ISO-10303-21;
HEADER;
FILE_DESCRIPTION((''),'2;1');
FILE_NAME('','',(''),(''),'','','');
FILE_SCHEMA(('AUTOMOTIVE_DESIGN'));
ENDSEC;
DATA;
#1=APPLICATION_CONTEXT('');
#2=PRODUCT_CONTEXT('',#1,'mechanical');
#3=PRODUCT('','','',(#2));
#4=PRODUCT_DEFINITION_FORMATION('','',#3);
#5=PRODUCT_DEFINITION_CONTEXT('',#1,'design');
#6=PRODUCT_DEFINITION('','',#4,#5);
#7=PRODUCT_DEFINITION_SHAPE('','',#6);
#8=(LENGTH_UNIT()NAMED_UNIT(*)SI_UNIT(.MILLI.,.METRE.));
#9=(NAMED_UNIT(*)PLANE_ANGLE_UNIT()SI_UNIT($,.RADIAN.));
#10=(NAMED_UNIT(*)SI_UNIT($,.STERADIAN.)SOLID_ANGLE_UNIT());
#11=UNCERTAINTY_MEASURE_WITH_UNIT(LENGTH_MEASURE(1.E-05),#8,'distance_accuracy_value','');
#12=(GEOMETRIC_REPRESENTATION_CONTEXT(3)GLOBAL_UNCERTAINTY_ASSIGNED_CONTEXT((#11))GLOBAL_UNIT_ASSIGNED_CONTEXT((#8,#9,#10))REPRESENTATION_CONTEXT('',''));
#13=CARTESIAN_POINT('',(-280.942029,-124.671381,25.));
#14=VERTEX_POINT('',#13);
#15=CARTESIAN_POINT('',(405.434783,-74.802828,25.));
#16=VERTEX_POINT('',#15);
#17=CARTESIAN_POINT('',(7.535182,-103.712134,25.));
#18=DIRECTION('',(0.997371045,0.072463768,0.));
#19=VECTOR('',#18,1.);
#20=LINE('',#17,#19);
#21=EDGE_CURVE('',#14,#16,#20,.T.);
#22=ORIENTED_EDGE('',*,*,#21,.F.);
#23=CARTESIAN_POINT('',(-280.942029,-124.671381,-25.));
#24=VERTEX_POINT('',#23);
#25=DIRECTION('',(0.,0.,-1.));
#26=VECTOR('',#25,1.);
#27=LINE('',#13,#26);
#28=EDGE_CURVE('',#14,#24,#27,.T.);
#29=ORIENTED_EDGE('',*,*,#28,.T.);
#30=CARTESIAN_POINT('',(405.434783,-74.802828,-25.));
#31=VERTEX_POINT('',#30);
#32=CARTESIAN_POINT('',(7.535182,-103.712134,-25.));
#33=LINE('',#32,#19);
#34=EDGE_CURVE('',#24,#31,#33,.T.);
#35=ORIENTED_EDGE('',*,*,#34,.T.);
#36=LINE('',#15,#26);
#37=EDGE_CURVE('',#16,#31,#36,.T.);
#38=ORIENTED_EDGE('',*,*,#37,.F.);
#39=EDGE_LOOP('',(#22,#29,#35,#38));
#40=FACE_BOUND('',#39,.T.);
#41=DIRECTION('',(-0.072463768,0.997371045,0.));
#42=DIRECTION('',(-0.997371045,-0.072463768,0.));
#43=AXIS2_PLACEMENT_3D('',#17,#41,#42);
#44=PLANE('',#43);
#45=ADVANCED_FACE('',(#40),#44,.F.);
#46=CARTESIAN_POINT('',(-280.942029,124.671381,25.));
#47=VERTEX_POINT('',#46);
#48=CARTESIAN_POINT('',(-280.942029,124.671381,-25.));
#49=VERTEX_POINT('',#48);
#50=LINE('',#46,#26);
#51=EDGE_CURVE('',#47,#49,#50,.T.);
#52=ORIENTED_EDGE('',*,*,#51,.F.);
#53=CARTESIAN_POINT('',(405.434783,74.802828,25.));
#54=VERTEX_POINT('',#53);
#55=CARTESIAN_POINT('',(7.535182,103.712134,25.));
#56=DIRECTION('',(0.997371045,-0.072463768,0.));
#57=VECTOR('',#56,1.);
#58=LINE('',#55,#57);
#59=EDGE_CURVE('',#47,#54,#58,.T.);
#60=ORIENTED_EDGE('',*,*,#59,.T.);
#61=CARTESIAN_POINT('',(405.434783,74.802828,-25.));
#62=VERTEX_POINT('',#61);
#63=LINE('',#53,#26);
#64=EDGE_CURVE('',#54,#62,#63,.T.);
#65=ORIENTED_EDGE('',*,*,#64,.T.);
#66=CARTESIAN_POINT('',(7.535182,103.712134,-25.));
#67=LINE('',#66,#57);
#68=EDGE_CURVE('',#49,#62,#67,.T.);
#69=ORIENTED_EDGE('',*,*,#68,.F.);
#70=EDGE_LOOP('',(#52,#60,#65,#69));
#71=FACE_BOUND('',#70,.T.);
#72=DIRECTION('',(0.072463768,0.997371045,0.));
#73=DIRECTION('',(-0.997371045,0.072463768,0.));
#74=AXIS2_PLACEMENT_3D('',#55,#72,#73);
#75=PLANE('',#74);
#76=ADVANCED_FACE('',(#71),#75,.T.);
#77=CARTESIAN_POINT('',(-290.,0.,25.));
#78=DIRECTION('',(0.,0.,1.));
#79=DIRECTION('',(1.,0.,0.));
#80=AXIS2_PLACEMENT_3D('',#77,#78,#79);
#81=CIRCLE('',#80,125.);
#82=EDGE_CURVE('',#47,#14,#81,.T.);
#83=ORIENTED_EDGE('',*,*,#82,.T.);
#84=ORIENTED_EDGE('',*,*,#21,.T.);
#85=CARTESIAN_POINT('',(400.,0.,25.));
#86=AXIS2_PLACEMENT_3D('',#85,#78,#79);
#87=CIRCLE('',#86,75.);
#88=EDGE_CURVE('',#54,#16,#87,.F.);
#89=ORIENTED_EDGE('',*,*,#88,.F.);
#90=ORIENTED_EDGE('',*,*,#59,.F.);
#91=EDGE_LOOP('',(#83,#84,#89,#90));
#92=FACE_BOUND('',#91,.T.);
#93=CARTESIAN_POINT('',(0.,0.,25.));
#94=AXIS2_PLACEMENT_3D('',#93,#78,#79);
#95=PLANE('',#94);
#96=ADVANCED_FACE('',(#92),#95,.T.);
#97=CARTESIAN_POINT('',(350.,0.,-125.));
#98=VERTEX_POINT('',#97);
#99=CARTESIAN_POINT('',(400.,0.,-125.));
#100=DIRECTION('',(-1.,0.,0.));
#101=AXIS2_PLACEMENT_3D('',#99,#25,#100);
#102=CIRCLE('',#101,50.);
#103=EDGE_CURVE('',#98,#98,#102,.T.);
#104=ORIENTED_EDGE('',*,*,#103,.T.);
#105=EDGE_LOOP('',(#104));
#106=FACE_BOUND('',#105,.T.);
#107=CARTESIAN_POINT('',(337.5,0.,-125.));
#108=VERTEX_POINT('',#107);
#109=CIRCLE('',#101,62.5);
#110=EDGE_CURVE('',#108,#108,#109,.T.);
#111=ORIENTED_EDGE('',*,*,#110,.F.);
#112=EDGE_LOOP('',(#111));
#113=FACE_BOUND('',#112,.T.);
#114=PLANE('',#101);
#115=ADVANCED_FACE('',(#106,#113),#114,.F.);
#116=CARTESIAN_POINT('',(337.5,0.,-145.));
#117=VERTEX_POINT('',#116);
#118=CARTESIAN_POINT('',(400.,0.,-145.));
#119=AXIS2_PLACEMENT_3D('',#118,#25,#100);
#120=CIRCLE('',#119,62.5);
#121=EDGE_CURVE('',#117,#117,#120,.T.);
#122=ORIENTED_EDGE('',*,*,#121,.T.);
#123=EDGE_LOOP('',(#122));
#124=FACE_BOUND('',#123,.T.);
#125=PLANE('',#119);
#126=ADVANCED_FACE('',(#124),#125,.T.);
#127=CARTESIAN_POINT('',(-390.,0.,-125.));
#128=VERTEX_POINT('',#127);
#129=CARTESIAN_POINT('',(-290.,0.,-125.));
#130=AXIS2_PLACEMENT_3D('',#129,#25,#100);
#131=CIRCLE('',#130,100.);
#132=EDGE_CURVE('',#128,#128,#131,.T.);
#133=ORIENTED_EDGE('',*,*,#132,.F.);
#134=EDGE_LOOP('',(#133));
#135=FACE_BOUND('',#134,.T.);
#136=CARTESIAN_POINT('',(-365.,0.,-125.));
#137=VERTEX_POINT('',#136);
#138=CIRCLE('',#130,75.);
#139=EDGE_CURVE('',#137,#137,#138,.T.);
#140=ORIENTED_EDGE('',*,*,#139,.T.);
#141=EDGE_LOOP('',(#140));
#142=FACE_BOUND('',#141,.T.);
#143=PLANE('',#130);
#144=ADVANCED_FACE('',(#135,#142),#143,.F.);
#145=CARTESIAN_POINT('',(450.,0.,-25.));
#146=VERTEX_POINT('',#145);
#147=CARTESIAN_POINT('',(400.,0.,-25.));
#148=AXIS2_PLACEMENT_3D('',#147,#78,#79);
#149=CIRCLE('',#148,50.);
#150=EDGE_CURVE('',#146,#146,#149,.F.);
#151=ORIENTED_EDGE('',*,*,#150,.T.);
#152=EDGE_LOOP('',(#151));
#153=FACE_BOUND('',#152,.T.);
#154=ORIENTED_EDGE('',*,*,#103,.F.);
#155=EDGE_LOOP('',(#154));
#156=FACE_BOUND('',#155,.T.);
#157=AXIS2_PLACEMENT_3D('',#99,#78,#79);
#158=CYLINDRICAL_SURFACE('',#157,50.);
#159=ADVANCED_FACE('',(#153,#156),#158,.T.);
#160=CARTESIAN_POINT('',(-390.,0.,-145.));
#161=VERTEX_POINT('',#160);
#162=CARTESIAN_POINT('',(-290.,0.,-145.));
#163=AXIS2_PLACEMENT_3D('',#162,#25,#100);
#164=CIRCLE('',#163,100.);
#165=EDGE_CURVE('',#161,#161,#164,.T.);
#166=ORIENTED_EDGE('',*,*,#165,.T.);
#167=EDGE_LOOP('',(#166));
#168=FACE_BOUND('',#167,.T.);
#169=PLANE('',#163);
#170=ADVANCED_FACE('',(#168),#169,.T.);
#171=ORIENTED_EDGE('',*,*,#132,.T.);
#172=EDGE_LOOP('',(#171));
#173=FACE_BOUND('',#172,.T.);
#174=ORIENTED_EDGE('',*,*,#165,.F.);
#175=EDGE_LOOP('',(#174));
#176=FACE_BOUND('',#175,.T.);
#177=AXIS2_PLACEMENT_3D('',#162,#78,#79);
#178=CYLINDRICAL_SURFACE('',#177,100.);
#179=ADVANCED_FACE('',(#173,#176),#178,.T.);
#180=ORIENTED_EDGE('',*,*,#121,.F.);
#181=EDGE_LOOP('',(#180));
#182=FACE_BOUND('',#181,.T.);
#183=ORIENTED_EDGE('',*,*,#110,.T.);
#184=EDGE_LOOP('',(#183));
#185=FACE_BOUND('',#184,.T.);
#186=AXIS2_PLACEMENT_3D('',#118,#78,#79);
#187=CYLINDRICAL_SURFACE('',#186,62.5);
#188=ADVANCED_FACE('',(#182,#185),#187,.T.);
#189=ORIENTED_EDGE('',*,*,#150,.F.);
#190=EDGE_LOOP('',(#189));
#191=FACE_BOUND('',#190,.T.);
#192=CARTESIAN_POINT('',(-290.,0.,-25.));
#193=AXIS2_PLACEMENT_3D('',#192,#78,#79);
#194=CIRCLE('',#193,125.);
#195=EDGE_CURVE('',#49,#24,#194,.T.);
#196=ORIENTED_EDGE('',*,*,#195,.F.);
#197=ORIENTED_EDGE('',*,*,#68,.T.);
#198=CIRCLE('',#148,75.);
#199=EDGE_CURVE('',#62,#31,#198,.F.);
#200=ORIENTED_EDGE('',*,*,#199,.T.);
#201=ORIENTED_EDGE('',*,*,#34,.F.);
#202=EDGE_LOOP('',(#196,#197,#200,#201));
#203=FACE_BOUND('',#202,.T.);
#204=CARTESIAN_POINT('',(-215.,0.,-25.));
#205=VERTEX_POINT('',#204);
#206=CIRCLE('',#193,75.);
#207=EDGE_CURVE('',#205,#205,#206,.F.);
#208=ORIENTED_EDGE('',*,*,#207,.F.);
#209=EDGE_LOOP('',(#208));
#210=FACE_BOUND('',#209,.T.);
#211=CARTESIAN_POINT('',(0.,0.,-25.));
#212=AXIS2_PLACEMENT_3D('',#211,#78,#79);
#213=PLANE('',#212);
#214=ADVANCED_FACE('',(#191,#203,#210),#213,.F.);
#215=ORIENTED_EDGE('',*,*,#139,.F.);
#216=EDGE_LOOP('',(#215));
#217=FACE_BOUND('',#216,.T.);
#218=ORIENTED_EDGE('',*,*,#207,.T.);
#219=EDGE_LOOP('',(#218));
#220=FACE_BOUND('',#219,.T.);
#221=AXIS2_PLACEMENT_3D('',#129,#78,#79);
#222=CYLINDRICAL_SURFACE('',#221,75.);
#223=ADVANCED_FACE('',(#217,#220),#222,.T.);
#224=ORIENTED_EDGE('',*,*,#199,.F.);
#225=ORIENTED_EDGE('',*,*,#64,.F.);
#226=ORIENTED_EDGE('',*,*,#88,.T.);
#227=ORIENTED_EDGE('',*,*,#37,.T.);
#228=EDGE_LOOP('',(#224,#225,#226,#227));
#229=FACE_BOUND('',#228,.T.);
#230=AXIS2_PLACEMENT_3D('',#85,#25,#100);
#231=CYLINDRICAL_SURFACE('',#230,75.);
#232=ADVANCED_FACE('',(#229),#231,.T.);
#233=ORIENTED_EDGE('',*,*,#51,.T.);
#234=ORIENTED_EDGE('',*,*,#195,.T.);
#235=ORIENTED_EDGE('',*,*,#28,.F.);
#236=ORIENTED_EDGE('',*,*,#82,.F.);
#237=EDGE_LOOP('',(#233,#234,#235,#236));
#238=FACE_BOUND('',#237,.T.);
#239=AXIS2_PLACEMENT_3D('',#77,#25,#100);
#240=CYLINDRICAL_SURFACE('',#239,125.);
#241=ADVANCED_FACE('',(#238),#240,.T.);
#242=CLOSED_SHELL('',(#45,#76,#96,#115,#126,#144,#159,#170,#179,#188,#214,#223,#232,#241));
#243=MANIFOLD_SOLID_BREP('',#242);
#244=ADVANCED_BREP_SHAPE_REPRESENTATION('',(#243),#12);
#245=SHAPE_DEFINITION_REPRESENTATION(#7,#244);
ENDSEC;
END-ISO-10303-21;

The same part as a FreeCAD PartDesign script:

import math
import FreeCAD as App
import Part
import Sketcher

V = App.Vector
Q = App.Units.Quantity

doc = App.newDocument("Part")
body = doc.addObject("PartDesign::Body", "Body")

# Sketch on XY plane
sketch1 = doc.addObject("Sketcher::SketchObject", "Sketch")
body.addObject(sketch1)
sketch1.AttachmentSupport = (doc.XY_Plane, [""])
sketch1.MapMode = "FlatFace"
sketch1.addGeometry([
    Part.ArcOfCircle(Part.Circle(V(400, 0, 0), V(0, 0, 1), 75), math.radians(0), math.radians(85.84449)),  # 0
    Part.LineSegment(V(405.434783, 74.802828, 0), V(-280.942029, 124.671381, 0)),  # 1
    Part.ArcOfCircle(Part.Circle(V(-290, 0, 0), V(0, 0, 1), 125), math.radians(85.84449), math.radians(274.15551)),  # 2
    Part.LineSegment(V(-280.942029, -124.671381, 0), V(405.434783, -74.802828, 0)),  # 3
    Part.ArcOfCircle(Part.Circle(V(400, 0, 0), V(0, 0, 1), 75), math.radians(-85.84449), math.radians(0)),  # 4
], False)
sketch1.addConstraint([
    Sketcher.Constraint("Tangent", 0, 2, 1, 1),
    Sketcher.Constraint("Tangent", 1, 2, 2, 1),
    Sketcher.Constraint("Tangent", 2, 2, 3, 1),
    Sketcher.Constraint("Tangent", 3, 2, 4, 1),
    Sketcher.Constraint("Tangent", 4, 2, 0, 1),
    Sketcher.Constraint("Equal", 0, 4),
    Sketcher.Constraint("Symmetric", 1, 2, 2, 2, -1),
    Sketcher.Constraint("PointOnObject", 4, 2, -1),
    Sketcher.Constraint("Radius", 0, Q("75 mm")),
    Sketcher.Constraint("Radius", 2, Q("125 mm")),
    Sketcher.Constraint("DistanceX", -1, 1, 0, 3, Q("400 mm")),
    Sketcher.Constraint("DistanceX", 2, 3, -1, 1, Q("290 mm")),
])
pad1 = doc.addObject("PartDesign::Pad", "Pad")
body.addObject(pad1)
pad1.Profile = sketch1
pad1.Length = 50
pad1.Midplane = True

# Sketch on XY plane
sketch2 = doc.addObject("Sketcher::SketchObject", "Sketch001")
body.addObject(sketch2)
sketch2.AttachmentSupport = (doc.XY_Plane, [""])
sketch2.MapMode = "FlatFace"
sketch2.AttachmentOffset = App.Placement(V(0, 0, -25), App.Rotation())
sketch2.addGeometry([
    Part.Circle(V(-290, 0, 0), V(0, 0, 1), 75),
    Part.Circle(V(400, 0, 0), V(0, 0, 1), 50),
], False)
sketch2.addConstraint([
    Sketcher.Constraint("PointOnObject", 0, 3, -1),
    Sketcher.Constraint("PointOnObject", 1, 3, -1),
    Sketcher.Constraint("Diameter", 0, Q("150 mm")),
    Sketcher.Constraint("Diameter", 1, Q("100 mm")),
    Sketcher.Constraint("DistanceX", 0, 3, -1, 1, Q("290 mm")),
    Sketcher.Constraint("DistanceX", -1, 1, 1, 3, Q("400 mm")),
])
pad2 = doc.addObject("PartDesign::Pad", "Pad001")
body.addObject(pad2)
pad2.Profile = sketch2
pad2.Length = 100
pad2.Reversed = True

# Sketch on XY plane
sketch3 = doc.addObject("Sketcher::SketchObject", "Sketch002")
body.addObject(sketch3)
sketch3.AttachmentSupport = (doc.XY_Plane, [""])
sketch3.MapMode = "FlatFace"
sketch3.AttachmentOffset = App.Placement(V(0, 0, -125), App.Rotation())
sketch3.addGeometry([
    Part.Circle(V(400, 0, 0), V(0, 0, 1), 62.5),
    Part.Circle(V(-290, 0, 0), V(0, 0, 1), 100),
], False)
sketch3.addConstraint([
    Sketcher.Constraint("PointOnObject", 0, 3, -1),
    Sketcher.Constraint("PointOnObject", 1, 3, -1),
    Sketcher.Constraint("Diameter", 0, Q("125 mm")),
    Sketcher.Constraint("Diameter", 1, Q("200 mm")),
    Sketcher.Constraint("DistanceX", -1, 1, 0, 3, Q("400 mm")),
    Sketcher.Constraint("DistanceX", 1, 3, -1, 1, Q("290 mm")),
])
pad3 = doc.addObject("PartDesign::Pad", "Pad002")
body.addObject(pad3)
pad3.Profile = sketch3
pad3.Length = 20
pad3.Reversed = True

doc.recompute()
